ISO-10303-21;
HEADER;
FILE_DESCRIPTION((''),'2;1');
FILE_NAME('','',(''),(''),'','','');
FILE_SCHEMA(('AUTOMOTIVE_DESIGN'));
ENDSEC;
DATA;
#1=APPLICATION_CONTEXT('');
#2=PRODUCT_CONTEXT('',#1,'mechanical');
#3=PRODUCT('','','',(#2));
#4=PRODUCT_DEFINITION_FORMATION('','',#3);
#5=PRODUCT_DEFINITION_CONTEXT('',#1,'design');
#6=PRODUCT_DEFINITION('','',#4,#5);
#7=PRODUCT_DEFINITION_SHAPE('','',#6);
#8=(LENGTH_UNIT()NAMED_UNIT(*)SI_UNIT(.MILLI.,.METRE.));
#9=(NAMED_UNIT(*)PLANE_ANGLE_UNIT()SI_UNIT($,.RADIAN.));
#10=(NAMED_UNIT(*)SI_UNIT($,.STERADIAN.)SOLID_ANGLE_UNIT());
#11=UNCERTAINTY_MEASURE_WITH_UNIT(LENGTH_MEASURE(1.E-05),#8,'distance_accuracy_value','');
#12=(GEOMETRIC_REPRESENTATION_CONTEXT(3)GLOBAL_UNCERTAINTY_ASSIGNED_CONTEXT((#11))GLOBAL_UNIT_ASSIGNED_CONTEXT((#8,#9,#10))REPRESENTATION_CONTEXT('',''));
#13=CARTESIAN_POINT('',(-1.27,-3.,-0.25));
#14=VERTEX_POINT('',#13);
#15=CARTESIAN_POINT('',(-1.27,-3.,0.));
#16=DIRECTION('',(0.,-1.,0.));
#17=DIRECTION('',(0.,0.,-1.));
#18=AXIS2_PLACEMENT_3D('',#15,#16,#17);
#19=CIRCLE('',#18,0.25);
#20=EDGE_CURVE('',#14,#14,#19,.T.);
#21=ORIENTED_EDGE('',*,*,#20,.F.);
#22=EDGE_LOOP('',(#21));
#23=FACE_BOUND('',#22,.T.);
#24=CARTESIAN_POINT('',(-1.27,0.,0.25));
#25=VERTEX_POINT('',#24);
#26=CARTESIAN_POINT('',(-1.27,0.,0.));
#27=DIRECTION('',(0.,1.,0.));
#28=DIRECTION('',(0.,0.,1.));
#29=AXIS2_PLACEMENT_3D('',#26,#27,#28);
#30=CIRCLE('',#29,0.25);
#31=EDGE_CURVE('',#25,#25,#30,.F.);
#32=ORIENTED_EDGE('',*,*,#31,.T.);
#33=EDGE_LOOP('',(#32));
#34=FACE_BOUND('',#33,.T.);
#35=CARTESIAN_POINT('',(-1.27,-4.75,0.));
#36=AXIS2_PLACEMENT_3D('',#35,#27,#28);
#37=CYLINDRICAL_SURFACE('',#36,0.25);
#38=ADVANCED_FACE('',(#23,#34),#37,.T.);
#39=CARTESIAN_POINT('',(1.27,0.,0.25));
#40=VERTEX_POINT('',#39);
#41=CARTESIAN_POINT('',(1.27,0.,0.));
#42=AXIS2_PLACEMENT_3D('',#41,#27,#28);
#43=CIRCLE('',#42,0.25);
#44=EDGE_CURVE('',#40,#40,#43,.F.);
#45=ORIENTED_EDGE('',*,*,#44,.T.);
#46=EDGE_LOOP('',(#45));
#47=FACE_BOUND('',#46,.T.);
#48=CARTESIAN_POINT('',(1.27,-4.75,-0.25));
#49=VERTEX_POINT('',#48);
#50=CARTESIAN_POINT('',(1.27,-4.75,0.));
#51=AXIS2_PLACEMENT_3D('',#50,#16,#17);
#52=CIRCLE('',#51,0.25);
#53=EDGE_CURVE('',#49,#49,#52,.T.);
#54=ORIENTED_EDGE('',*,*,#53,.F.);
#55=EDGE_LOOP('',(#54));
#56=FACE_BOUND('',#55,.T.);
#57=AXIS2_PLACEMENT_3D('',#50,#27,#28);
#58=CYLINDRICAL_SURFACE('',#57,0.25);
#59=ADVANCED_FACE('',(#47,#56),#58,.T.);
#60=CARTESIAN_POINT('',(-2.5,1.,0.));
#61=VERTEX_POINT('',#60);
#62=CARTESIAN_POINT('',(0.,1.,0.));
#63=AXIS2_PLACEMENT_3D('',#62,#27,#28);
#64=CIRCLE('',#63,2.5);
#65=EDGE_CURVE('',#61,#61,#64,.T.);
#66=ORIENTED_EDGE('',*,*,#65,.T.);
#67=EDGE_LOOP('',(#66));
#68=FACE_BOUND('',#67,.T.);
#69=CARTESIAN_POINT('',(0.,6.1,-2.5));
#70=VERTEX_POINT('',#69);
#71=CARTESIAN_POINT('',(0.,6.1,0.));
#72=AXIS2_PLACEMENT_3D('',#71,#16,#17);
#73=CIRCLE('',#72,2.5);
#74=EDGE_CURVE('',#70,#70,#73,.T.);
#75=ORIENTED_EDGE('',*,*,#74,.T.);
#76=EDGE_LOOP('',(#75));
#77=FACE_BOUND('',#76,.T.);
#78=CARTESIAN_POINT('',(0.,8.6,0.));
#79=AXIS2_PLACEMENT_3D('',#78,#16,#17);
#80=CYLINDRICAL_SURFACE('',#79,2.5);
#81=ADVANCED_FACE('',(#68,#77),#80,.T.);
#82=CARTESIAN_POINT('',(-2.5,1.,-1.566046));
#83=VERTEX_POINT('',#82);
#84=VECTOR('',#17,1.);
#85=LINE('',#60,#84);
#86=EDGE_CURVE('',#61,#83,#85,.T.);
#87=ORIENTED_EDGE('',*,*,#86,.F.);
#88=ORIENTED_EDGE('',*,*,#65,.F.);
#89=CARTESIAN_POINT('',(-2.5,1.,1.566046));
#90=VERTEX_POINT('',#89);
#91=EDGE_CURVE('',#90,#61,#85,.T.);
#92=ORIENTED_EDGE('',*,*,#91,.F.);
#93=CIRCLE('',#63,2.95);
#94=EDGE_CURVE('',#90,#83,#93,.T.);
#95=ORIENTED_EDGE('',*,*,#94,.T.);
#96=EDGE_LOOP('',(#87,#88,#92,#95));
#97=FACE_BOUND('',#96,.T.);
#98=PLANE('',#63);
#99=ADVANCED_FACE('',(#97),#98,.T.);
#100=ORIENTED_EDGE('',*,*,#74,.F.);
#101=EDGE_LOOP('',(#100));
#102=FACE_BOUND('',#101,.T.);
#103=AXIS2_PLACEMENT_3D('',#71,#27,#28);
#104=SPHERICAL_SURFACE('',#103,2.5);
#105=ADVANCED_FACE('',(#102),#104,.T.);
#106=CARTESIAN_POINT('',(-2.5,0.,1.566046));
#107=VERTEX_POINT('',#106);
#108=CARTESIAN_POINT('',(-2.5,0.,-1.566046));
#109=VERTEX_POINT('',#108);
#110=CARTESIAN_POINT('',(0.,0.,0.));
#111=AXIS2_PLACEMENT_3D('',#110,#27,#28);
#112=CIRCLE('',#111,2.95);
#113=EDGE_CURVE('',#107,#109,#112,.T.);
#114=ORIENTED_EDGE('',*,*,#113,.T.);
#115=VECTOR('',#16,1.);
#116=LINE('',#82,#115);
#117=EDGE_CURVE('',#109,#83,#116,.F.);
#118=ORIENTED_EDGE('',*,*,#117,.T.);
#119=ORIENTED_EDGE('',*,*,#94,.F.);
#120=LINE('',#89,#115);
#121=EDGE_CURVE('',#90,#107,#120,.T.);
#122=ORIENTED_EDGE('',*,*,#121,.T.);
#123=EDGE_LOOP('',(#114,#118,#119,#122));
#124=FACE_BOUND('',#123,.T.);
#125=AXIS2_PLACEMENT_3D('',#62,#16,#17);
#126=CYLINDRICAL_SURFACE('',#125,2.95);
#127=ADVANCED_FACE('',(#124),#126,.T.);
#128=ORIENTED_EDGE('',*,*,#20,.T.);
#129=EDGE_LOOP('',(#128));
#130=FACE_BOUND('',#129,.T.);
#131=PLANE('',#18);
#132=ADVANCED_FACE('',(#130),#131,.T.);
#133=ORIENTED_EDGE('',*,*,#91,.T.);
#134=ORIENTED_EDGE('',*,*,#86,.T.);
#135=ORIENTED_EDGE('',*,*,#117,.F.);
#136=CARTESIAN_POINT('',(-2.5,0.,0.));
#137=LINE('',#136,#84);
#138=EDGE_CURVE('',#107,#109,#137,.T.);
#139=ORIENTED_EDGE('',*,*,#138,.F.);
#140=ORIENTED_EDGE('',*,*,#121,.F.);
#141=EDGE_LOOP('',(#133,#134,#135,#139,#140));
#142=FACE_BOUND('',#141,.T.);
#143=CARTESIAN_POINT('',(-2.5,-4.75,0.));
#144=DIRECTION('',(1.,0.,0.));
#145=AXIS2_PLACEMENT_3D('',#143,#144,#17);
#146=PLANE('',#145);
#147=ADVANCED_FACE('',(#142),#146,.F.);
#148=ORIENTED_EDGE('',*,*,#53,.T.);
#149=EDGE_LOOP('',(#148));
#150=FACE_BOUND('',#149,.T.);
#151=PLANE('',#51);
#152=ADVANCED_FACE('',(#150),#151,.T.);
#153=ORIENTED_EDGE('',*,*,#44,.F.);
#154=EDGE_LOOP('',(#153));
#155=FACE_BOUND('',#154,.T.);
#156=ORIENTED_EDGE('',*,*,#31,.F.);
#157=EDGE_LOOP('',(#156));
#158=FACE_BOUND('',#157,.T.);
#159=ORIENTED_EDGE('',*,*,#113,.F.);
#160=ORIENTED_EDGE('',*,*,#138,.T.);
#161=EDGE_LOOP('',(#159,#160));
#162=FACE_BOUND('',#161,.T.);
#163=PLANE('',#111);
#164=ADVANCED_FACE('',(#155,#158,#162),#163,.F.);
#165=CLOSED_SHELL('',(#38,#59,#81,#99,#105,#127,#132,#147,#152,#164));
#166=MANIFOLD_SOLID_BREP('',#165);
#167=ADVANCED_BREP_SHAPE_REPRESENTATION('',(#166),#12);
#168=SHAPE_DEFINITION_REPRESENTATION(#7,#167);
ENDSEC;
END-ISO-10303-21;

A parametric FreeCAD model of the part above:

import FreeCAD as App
import Part
import Sketcher

V = App.Vector
Q = App.Units.Quantity


def edges_at(feature, points):
    """Names of the edges that pass closest to the given points."""
    edges = feature.Shape.Edges
    near = lambda p: min(range(len(edges)), key=lambda i: edges[i].distToShape(Part.Vertex(*p))[0])
    return sorted({f"Edge{near(p) + 1}" for p in points})

doc = App.newDocument("Part")
params = doc.addObject("Spreadsheet::Sheet", "Params")
for row, (alias, value) in enumerate([
    ("sketch1_diameter", "5.9 mm"),
    ("pad1_length", "1 mm"),
    ("sketch2_diameter", "5 mm"),
    ("pad2_length", "7.6 mm"),
    ("fillet_radius", "2.5 mm"),
    ("sketch3_diameter", "0.5 mm"),
    ("pad3_length", "4.75 mm"),
    ("sketch4_diameter", "0.5 mm"),
    ("pocket1_length", "1.75 mm"),
], start=1):
    params.set(f"A{row}", alias)
    params.set(f"B{row}", "=" + value)
    params.setAlias(f"B{row}", alias)

body = doc.addObject("PartDesign::Body", "Body")

sketch1 = doc.addObject("Sketcher::SketchObject", "Sketch")
body.addObject(sketch1)
sketch1.AttachmentSupport = (doc.XZ_Plane, [""])
sketch1.MapMode = "FlatFace"
sketch1.addGeometry(Part.Circle(V(0, 0, 0), V(0, 0, 1), 3), False)
sketch1.addConstraint(Sketcher.Constraint("Coincident", 0, 3, -1, 1))
sketch1.addConstraint(Sketcher.Constraint("Diameter", 0, Q("5.9 mm")))
sketch1.setExpression("Constraints[1]", "Params.sketch1_diameter")
pad1 = doc.addObject("PartDesign::Pad", "Pad")
body.addObject(pad1)
pad1.Profile = sketch1
pad1.setExpression("Length", "Params.pad1_length")
pad1.Reversed = True

sketch2 = doc.addObject("Sketcher::SketchObject", "Sketch001")
body.addObject(sketch2)
sketch2.AttachmentSupport = (doc.XZ_Plane, [""])
sketch2.MapMode = "FlatFace"
sketch2.AttachmentOffset = App.Placement(V(0, 0, -1), App.Rotation())
sketch2.addGeometry(Part.Circle(V(0, 0, 0), V(0, 0, 1), 2.5), False)
sketch2.addConstraint(Sketcher.Constraint("Coincident", 0, 3, -1, 1))
sketch2.addConstraint(Sketcher.Constraint("Diameter", 0, Q("5 mm")))
sketch2.setExpression("Constraints[1]", "Params.sketch2_diameter")
pad2 = doc.addObject("PartDesign::Pad", "Pad001")
body.addObject(pad2)
pad2.Profile = sketch2
pad2.setExpression("Length", "Params.pad2_length")
pad2.Reversed = True
doc.recompute()

fillet = doc.addObject("PartDesign::Fillet", "Fillet")
body.addObject(fillet)
fillet.Base = (pad2, edges_at(pad2, [(0, 8.6, 2.5)]))
fillet.setExpression("Radius", "Params.fillet_radius")

sketch3 = doc.addObject("Sketcher::SketchObject", "Sketch002")
body.addObject(sketch3)
sketch3.AttachmentSupport = (doc.XZ_Plane, [""])
sketch3.MapMode = "FlatFace"
sketch3.addGeometry(Part.Circle(V(-1.27, 0, 0), V(0, 0, 1), 0.25), False)
sketch3.addGeometry(Part.Circle(V(1.27, 0, 0), V(0, 0, 1), 0.25), False)
sketch3.addConstraint(Sketcher.Constraint("Equal", 0, 1))
sketch3.addConstraint(Sketcher.Constraint("Symmetric", 0, 3, 1, 3, -1, 1))
sketch3.addConstraint(Sketcher.Constraint("PointOnObject", 0, 3, -1))
sketch3.addConstraint(Sketcher.Constraint("Diameter", 0, Q("0.5 mm")))
sketch3.addConstraint(Sketcher.Constraint("DistanceX", 0, 3, -1, 1, Q("1.27 mm")))
sketch3.setExpression("Constraints[3]", "Params.sketch3_diameter")
pad3 = doc.addObject("PartDesign::Pad", "Pad002")
body.addObject(pad3)
pad3.Profile = sketch3
pad3.setExpression("Length", "Params.pad3_length")

sketch4 = doc.addObject("Sketcher::SketchObject", "Sketch003")
body.addObject(sketch4)
sketch4.AttachmentSupport = (doc.XZ_Plane, [""])
sketch4.MapMode = "FlatFace"
sketch4.AttachmentOffset = App.Placement(V(0, 0, 3), App.Rotation())
sketch4.addGeometry(Part.Circle(V(-1.27, 0, 0), V(0, 0, 1), 0.25), False)
sketch4.addConstraint(Sketcher.Constraint("PointOnObject", 0, 3, -1))
sketch4.addConstraint(Sketcher.Constraint("Diameter", 0, Q("0.5 mm")))
sketch4.addConstraint(Sketcher.Constraint("DistanceX", 0, 3, -1, 1, Q("1.27 mm")))
sketch4.setExpression("Constraints[1]", "Params.sketch4_diameter")
pocket1 = doc.addObject("PartDesign::Pocket", "Pocket")
body.addObject(pocket1)
pocket1.Profile = sketch4
pocket1.setExpression("Length", "Params.pocket1_length")
pocket1.Reversed = True

sketch5 = doc.addObject("Sketcher::SketchObject", "Sketch004")
body.addObject(sketch5)
sketch5.AttachmentSupport = (doc.XZ_Plane, [""])
sketch5.MapMode = "FlatFace"
sketch5.AttachmentOffset = App.Placement(V(0, 0, -1), App.Rotation())
sketch5.addGeometry(Part.LineSegment(V(-2.5, -2, 0), V(-3.1, -2, 0)), False)
sketch5.addGeometry(Part.LineSegment(V(-3.1, -2, 0), V(-3.1, 2.2, 0)), False)
sketch5.addGeometry(Part.LineSegment(V(-3.1, 2.2, 0), V(-2.5, 2.2, 0)), False)
sketch5.addGeometry(Part.LineSegment(V(-2.5, 2.2, 0), V(-2.5, -2, 0)), False)
sketch5.addConstraint(Sketcher.Constraint("Coincident", 0, 2, 1, 1))
sketch5.addConstraint(Sketcher.Constraint("Coincident", 1, 2, 2, 1))
sketch5.addConstraint(Sketcher.Constraint("Coincident", 2, 2, 3, 1))
sketch5.addConstraint(Sketcher.Constraint("Coincident", 3, 2, 0, 1))
sketch5.addConstraint(Sketcher.Constraint("Horizontal", 0))
sketch5.addConstraint(Sketcher.Constraint("Vertical", 1))
sketch5.addConstraint(Sketcher.Constraint("Horizontal", 2))
sketch5.addConstraint(Sketcher.Constraint("Vertical", 3))
sketch5.addConstraint(Sketcher.Constraint("DistanceX", 2, 2, -1, 1, Q("2.5 mm")))
sketch5.addConstraint(Sketcher.Constraint("DistanceX", 0, 2, 0, 1, Q("0.625999 mm")))
sketch5.addConstraint(Sketcher.Constraint("DistanceY", 1, 1, 1, 2, Q("4.167999 mm")))
sketch5.addConstraint(Sketcher.Constraint("DistanceY", 0, 2, -1, 1, Q("1.983521 mm")))
pocket2 = doc.addObject("PartDesign::Pocket", "Pocket001")
body.addObject(pocket2)
pocket2.Profile = sketch5
pocket2.Type = "ThroughAll"
pocket2.Reversed = True

doc.recompute()
